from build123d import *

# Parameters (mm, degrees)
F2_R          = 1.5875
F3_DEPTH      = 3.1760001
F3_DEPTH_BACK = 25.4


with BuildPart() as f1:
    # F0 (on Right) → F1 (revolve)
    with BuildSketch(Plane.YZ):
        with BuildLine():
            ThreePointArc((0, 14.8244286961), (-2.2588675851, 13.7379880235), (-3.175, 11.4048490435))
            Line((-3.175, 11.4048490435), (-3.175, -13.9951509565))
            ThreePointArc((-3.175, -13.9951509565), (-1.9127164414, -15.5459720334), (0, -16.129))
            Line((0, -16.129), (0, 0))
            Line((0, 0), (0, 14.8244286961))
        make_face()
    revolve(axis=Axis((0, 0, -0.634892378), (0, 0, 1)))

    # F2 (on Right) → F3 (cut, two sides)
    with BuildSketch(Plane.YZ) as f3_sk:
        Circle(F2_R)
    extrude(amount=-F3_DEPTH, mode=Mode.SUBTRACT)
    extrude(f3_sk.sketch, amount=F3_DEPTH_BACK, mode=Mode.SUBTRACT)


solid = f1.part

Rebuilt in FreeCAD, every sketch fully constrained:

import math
import FreeCAD as App
import Part
import Sketcher
Q = App.Units.Quantity

doc = App.newDocument("Part")
body = doc.addObject("PartDesign::Body", "Body")

# Sketch on YZ plane
sketch1 = doc.addObject("Sketcher::SketchObject", "Sketch")
body.addObject(sketch1)
sketch1.AttachmentSupport = (doc.YZ_Plane, [""])
sketch1.MapMode = "FlatFace"
sketch1.addGeometry(Part.ArcOfCircle(Part.Circle(App.Vector(0.3, 11.4, 0), App.Vector(0, 0, 1), 3.4), math.radians(94), math.radians(180)), False)
sketch1.addGeometry(Part.LineSegment(App.Vector(-3.2, 11.4, 0), App.Vector(-3.2, -14, 0)), False)
sketch1.addGeometry(Part.ArcOfCircle(Part.Circle(App.Vector(0, -12.7, 0), App.Vector(0, 0, 1), 3.4), math.radians(-158), math.radians(-90)), False)
sketch1.addGeometry(Part.LineSegment(App.Vector(0, -16.1, 0), App.Vector(0, 14.8, 0)), False)
sketch1.addConstraint(Sketcher.Constraint("Tangent", 0, 2, 1, 1))
sketch1.addConstraint(Sketcher.Constraint("Coincident", 1, 2, 2, 1))
sketch1.addConstraint(Sketcher.Constraint("Coincident", 2, 2, 3, 1))
sketch1.addConstraint(Sketcher.Constraint("Coincident", 3, 2, 0, 1))
sketch1.addConstraint(Sketcher.Constraint("Vertical", 1))
sketch1.addConstraint(Sketcher.Constraint("Vertical", 3))
sketch1.addConstraint(Sketcher.Constraint("Equal", 0, 2))
sketch1.addConstraint(Sketcher.Constraint("PointOnObject", 2, 3, -2))
sketch1.addConstraint(Sketcher.Constraint("PointOnObject", 2, 2, -2))
sketch1.addConstraint(Sketcher.Constraint("DistanceY", 1, 2, 1, 1, Q("1 in")))
sketch1.addConstraint(Sketcher.Constraint("Radius", 0, Q("0.135 in")))
sketch1.addConstraint(Sketcher.Constraint("DistanceY", 2, 3, -1, 1, Q("0.5 in")))
sketch1.addConstraint(Sketcher.Constraint("DistanceX", -1, 1, 0, 3, Q("0.01 in")))
revolution = doc.addObject("PartDesign::Revolution", "Revolution")
body.addObject(revolution)
revolution.Profile = sketch1
revolution.ReferenceAxis = (sketch1, ["V_Axis"])
revolution.Angle = 360

# Sketch on YZ plane
sketch2 = doc.addObject("Sketcher::SketchObject", "Sketch001")
body.addObject(sketch2)
sketch2.AttachmentSupport = (doc.YZ_Plane, [""])
sketch2.MapMode = "FlatFace"
sketch2.addGeometry(Part.Circle(App.Vector(0, 0, 0), App.Vector(0, 0, 1), 1.6), False)
sketch2.addConstraint(Sketcher.Constraint("Coincident", 0, 3, -1, 1))
sketch2.addConstraint(Sketcher.Constraint("Diameter", 0, Q("0.125 in")))
pocket1 = doc.addObject("PartDesign::Pocket", "Pocket")
body.addObject(pocket1)
pocket1.Profile = sketch2
pocket1.Type = "ThroughAll"
pocket1.Midplane = True

doc.recompute()
